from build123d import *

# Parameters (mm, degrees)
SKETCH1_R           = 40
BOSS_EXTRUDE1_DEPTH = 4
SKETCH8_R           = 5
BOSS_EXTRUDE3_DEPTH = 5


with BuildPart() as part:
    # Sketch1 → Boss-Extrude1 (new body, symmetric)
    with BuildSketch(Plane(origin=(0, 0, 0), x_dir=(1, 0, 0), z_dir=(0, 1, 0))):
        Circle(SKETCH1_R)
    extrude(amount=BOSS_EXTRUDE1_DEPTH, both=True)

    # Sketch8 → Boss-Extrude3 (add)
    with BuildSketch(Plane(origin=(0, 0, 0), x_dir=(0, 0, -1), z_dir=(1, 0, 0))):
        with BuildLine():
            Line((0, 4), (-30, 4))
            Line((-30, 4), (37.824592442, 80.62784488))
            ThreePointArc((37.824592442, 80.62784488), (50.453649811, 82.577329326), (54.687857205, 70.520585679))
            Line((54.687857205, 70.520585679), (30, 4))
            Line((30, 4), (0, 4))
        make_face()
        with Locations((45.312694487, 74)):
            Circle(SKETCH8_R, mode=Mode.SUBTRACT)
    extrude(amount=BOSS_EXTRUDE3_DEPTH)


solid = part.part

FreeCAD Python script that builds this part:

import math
import FreeCAD as App
import Part
import Sketcher
from FreeCAD import Vector
Q = App.Units.Quantity

doc = App.newDocument("Part")
body = doc.addObject("PartDesign::Body", "Body")

sketch1 = doc.addObject("Sketcher::SketchObject", "Sketch")
body.addObject(sketch1)
sketch1.AttachmentSupport = (doc.XZ_Plane, [""])
sketch1.MapMode = "FlatFace"
sketch1.addGeometry(Part.Circle(Vector(0, 0, 0), Vector(0, 0, 1), 40), False)
sketch1.addConstraint(Sketcher.Constraint("Coincident", 0, 3, -1, 1))
sketch1.addConstraint(Sketcher.Constraint("Diameter", 0, Q("80 mm")))
pad1 = doc.addObject("PartDesign::Pad", "Pad")
body.addObject(pad1)
pad1.Profile = sketch1
pad1.Length = 8
pad1.Midplane = True

sketch2 = doc.addObject("Sketcher::SketchObject", "Sketch001")
body.addObject(sketch2)
sketch2.AttachmentSupport = (doc.YZ_Plane, [""])
sketch2.MapMode = "FlatFace"
sketch2.addGeometry(Part.LineSegment(Vector(80.627845, -37.824592, 0), Vector(4, 30, 0)), False)
sketch2.addGeometry(Part.LineSegment(Vector(4, 30, 0), Vector(4, -30, 0)), False)
sketch2.addGeometry(Part.LineSegment(Vector(4, -30, 0), Vector(70.520586, -54.687857, 0)), False)
sketch2.addGeometry(Part.ArcOfCircle(Part.Circle(Vector(74, -45.312694, 0), Vector(0, 0, 1), 10), math.radians(-110.361455), math.radians(48.487419)), False)
sketch2.addGeometry(Part.Circle(Vector(74, -45.312694, 0), Vector(0, 0, 1), 5), False)
sketch2.addConstraint(Sketcher.Constraint("Coincident", 0, 2, 1, 1))
sketch2.addConstraint(Sketcher.Constraint("Coincident", 1, 2, 2, 1))
sketch2.addConstraint(Sketcher.Constraint("Tangent", 2, 2, 3, 1))
sketch2.addConstraint(Sketcher.Constraint("Tangent", 3, 2, 0, 1))
sketch2.addConstraint(Sketcher.Constraint("Vertical", 1))
sketch2.addConstraint(Sketcher.Constraint("Coincident", 4, 3, 3, 3))
sketch2.addConstraint(Sketcher.Constraint("Diameter", 4, Q("10 mm")))
sketch2.addConstraint(Sketcher.Constraint("Radius", 3, Q("10 mm")))
sketch2.addConstraint(Sketcher.Constraint("DistanceY", 1, 2, 1, 1, Q("60 mm")))
sketch2.addConstraint(Sketcher.Constraint("DistanceX", -1, 1, 3, 3, Q("74 mm")))
sketch2.addConstraint(Sketcher.Constraint("DistanceX", -1, 1, 0, 2, Q("4 mm")))
sketch2.addConstraint(Sketcher.Constraint("DistanceY", -1, 1, 0, 2, Q("30 mm")))
sketch2.addConstraint(Sketcher.Constraint("Distance", 0, Q("102.3328 mm")))
pad2 = doc.addObject("PartDesign::Pad", "Pad001")
body.addObject(pad2)
pad2.Profile = sketch2
pad2.Length = 5

doc.recompute()
